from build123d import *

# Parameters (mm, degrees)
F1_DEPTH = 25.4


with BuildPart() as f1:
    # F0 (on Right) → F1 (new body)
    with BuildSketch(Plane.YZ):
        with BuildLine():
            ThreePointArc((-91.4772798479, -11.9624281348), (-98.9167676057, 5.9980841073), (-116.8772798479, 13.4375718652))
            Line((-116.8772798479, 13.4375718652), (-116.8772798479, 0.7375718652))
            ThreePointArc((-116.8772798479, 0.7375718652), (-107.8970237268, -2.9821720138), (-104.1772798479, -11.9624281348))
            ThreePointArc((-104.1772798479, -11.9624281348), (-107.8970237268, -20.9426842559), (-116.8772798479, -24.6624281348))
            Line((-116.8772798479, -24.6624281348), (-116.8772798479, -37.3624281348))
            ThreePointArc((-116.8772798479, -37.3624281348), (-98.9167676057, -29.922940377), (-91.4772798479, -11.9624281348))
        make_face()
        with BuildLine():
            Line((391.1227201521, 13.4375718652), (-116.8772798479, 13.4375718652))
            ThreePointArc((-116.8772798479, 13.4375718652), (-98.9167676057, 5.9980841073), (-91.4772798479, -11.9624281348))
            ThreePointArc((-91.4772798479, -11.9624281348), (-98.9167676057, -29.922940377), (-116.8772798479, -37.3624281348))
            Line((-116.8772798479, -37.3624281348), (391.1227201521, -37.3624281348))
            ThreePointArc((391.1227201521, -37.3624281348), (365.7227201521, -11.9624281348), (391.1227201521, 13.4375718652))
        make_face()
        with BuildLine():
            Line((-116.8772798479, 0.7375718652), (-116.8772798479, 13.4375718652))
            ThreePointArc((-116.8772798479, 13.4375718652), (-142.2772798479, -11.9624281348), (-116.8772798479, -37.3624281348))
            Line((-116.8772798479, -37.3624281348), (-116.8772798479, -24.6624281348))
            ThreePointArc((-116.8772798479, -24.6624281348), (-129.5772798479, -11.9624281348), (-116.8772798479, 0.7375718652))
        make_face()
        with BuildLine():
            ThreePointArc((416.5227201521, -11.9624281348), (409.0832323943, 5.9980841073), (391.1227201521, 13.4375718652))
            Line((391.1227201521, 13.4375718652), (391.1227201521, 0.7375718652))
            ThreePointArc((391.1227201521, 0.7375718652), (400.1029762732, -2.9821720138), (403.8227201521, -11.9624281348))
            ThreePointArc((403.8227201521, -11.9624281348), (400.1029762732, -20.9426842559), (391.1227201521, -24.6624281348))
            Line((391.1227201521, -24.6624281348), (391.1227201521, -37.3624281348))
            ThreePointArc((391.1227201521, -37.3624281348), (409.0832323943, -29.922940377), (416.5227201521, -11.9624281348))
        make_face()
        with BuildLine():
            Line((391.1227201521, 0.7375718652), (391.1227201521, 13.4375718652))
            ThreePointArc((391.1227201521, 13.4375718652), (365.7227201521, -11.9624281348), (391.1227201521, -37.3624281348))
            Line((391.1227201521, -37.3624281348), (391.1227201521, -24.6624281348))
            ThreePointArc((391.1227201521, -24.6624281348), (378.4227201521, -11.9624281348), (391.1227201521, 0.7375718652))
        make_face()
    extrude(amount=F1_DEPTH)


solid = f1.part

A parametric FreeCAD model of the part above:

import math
import FreeCAD as App
import Part
import Sketcher
from FreeCAD import Vector
Q = App.Units.Quantity

doc = App.newDocument("Part")
body = doc.addObject("PartDesign::Body", "Body")

sketch1 = body.newObject("Sketcher::SketchObject", "Sketch")
sketch1.AttachmentSupport = (doc.getObject("YZ_Plane"), [""])
sketch1.MapMode = "FlatFace"
sketch1.addGeometry(Part.LineSegment(Vector(-116.87728, -37.362428, 0), Vector(391.12272, -37.362428, 0)), False)
sketch1.addGeometry(Part.ArcOfCircle(Part.Circle(Vector(391.12272, -11.962428, 0), Vector(0, 0, 1), 25.4), math.radians(-90), math.radians(0)), False)
sketch1.addGeometry(Part.ArcOfCircle(Part.Circle(Vector(391.12272, -11.962428, 0), Vector(0, 0, 1), 25.4), math.radians(0), math.radians(90)), False)
sketch1.addGeometry(Part.LineSegment(Vector(391.12272, 13.437572, 0), Vector(-116.87728, 13.437572, 0)), False)
sketch1.addGeometry(Part.ArcOfCircle(Part.Circle(Vector(-116.87728, -11.962428, 0), Vector(0, 0, 1), 25.4), math.radians(90), math.radians(270)), False)
sketch1.addGeometry(Part.ArcOfCircle(Part.Circle(Vector(-116.87728, -11.962428, 0), Vector(0, 0, 1), 12.7), math.radians(0), math.radians(90)), False)
sketch1.addGeometry(Part.ArcOfCircle(Part.Circle(Vector(-116.87728, -11.962428, 0), Vector(0, 0, 1), 12.7), math.radians(-90), math.radians(0)), False)
sketch1.addGeometry(Part.ArcOfCircle(Part.Circle(Vector(-116.87728, -11.962428, 0), Vector(0, 0, 1), 12.7), math.radians(90), math.radians(270)), False)
sketch1.addGeometry(Part.ArcOfCircle(Part.Circle(Vector(391.12272, -11.962428, 0), Vector(0, 0, 1), 12.7), math.radians(90), math.radians(270)), False)
sketch1.addGeometry(Part.ArcOfCircle(Part.Circle(Vector(391.12272, -11.962428, 0), Vector(0, 0, 1), 12.7), math.radians(0), math.radians(90)), False)
sketch1.addGeometry(Part.ArcOfCircle(Part.Circle(Vector(391.12272, -11.962428, 0), Vector(0, 0, 1), 12.7), math.radians(-90), math.radians(0)), False)
sketch1.addConstraint(Sketcher.Constraint("Tangent", 0, 2, 1, 1))
sketch1.addConstraint(Sketcher.Constraint("Tangent", 1, 2, 2, 1))
sketch1.addConstraint(Sketcher.Constraint("Tangent", 2, 2, 3, 1))
sketch1.addConstraint(Sketcher.Constraint("Tangent", 3, 2, 4, 1))
sketch1.addConstraint(Sketcher.Constraint("Tangent", 4, 2, 0, 1))
sketch1.addConstraint(Sketcher.Constraint("Tangent", 5, 1, 6, 2))
sketch1.addConstraint(Sketcher.Constraint("Tangent", 6, 1, 7, 2))
sketch1.addConstraint(Sketcher.Constraint("Tangent", 7, 1, 5, 2))
sketch1.addConstraint(Sketcher.Constraint("Tangent", 8, 1, 9, 2))
sketch1.addConstraint(Sketcher.Constraint("Tangent", 9, 1, 10, 2))
sketch1.addConstraint(Sketcher.Constraint("Tangent", 10, 1, 8, 2))
sketch1.addConstraint(Sketcher.Constraint("Horizontal", 0))
sketch1.addConstraint(Sketcher.Constraint("Horizontal", 3))
sketch1.addConstraint(Sketcher.Constraint("Coincident", 5, 3, 4, 3))
sketch1.addConstraint(Sketcher.Constraint("Coincident", 8, 3, 1, 3))
sketch1.addConstraint(Sketcher.Constraint("Equal", 1, 2))
sketch1.addConstraint(Sketcher.Constraint("Equal", 7, 8))
sketch1.addConstraint(Sketcher.Constraint("Horizontal", 10, 3, 1, 2))
sketch1.addConstraint(Sketcher.Constraint("Horizontal", 1, 2, 5, 1))
sketch1.addConstraint(Sketcher.Constraint("Horizontal", 5, 1, 9, 1))
sketch1.addConstraint(Sketcher.Constraint("Vertical", 4, 2, 6, 1))
sketch1.addConstraint(Sketcher.Constraint("Vertical", 6, 1, 7, 1))
sketch1.addConstraint(Sketcher.Constraint("Vertical", 2, 2, 8, 1))
sketch1.addConstraint(Sketcher.Constraint("Vertical", 8, 1, 10, 1))
sketch1.addConstraint(Sketcher.Constraint("Radius", 1, Q("1 in")))
sketch1.addConstraint(Sketcher.Constraint("Radius", 5, Q("0.5 in")))
sketch1.addConstraint(Sketcher.Constraint("DistanceX", 0, 1, 0, 2, Q("20 in")))
sketch1.addConstraint(Sketcher.Constraint("DistanceX", -1, 1, 1, 3, 391.12272))
sketch1.addConstraint(Sketcher.Constraint("DistanceY", 1, 3, -1, 1, 11.962428))
pad1 = body.newObject("PartDesign::Pad", "Pad")
pad1.Profile = sketch1
pad1.Length = Q("1 in")

doc.recompute()
